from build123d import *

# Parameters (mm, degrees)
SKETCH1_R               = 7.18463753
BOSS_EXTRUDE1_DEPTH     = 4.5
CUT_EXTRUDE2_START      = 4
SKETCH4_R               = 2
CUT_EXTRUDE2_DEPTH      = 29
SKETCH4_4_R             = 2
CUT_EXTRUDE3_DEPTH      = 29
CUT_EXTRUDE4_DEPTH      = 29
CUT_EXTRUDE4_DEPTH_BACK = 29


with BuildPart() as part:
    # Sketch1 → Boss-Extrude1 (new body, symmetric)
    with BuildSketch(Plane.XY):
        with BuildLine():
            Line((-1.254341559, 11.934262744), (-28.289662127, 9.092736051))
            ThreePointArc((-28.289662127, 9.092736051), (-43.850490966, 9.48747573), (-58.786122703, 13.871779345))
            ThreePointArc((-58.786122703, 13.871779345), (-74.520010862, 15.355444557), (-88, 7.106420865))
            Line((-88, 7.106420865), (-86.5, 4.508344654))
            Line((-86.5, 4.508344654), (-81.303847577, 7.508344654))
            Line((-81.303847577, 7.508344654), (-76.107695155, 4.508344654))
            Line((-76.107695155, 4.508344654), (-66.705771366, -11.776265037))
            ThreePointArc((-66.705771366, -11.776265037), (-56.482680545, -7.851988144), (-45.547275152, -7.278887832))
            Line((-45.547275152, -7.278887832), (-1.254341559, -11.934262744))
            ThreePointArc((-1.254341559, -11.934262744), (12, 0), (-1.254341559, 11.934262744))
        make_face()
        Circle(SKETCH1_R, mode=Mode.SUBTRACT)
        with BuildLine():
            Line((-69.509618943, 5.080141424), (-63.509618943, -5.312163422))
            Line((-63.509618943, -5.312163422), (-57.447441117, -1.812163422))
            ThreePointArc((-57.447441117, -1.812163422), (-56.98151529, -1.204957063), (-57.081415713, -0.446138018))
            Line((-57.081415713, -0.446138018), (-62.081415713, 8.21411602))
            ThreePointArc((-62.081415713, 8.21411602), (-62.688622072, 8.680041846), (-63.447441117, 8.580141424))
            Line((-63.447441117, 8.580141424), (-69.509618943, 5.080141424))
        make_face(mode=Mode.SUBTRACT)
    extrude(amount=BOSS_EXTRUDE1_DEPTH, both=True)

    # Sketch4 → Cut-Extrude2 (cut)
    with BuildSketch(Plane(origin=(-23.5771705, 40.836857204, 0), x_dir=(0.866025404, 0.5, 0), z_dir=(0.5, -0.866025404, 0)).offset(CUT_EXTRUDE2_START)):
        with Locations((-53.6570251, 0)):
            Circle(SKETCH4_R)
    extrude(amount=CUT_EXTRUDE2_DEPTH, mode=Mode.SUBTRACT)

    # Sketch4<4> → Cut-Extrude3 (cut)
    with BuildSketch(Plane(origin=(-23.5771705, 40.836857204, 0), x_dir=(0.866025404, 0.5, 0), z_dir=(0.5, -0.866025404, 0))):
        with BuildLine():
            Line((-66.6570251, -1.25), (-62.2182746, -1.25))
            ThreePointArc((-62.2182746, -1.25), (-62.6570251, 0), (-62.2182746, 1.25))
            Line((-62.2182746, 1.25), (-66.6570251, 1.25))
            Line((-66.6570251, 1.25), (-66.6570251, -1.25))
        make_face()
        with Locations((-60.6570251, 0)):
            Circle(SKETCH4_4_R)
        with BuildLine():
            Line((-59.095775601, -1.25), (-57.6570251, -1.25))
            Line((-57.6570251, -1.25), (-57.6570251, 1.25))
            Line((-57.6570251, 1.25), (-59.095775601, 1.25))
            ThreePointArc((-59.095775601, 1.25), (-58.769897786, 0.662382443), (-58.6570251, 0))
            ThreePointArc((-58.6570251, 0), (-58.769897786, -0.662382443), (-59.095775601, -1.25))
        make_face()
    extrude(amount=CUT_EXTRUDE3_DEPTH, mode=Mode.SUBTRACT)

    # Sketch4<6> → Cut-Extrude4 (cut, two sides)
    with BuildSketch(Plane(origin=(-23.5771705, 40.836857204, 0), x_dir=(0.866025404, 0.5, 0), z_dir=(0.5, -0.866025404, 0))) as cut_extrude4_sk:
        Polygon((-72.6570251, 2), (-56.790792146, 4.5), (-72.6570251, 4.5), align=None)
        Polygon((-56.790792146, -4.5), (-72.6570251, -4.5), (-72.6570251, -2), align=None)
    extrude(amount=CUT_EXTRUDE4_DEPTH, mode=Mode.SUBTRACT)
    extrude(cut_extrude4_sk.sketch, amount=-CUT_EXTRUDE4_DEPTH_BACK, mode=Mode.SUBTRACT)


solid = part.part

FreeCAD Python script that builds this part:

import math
import FreeCAD as App
import Part
import Sketcher

V = App.Vector
Q = App.Units.Quantity


def add_polygon(sketch, points):
    """Adds a closed chain of lines whose ends are joined by coincident constraints."""
    first, n = sketch.GeometryCount, len(points)
    for a, b in zip(points, points[1:] + points[:1]):
        sketch.addGeometry(Part.LineSegment(App.Vector(*a, 0), App.Vector(*b, 0)), False)
    for i in range(n):
        sketch.addConstraint(Sketcher.Constraint("Coincident", first + i, 2, first + (i + 1) % n, 1))

doc = App.newDocument("Part")
body = doc.addObject("PartDesign::Body", "Body")

# Sketch on XY plane
sketch1 = doc.addObject("Sketcher::SketchObject", "Sketch")
body.addObject(sketch1)
sketch1.AttachmentSupport = (doc.XY_Plane, [""])
sketch1.MapMode = "FlatFace"
sketch1.addGeometry([
    Part.LineSegment(V(-1.3, 11.9, 0), V(-28.3, 9.1, 0)),  # 0
    Part.ArcOfCircle(Part.Circle(V(-34.6, 68.8, 0), V(0, 0, 1), 60), math.radians(-114), math.radians(-84)),  # 1
    Part.ArcOfCircle(Part.Circle(V(-68.9, -9, 0), V(0, 0, 1), 25), math.radians(66), math.radians(140)),  # 2
    Part.LineSegment(V(-88, 7.1, 0), V(-86.5, 4.5, 0)),  # 3
    Part.LineSegment(V(-86.5, 4.5, 0), V(-81.3, 7.5, 0)),  # 4
    Part.LineSegment(V(-81.3, 7.5, 0), V(-76.1, 4.5, 0)),  # 5
    Part.LineSegment(V(-76.1, 4.5, 0), V(-66.7, -11.8, 0)),  # 6
    Part.ArcOfCircle(Part.Circle(V(-49.2, -42.1, 0), V(0, 0, 1), 35), math.radians(84), math.radians(120)),  # 7
    Part.LineSegment(V(-45.5, -7.3, 0), V(-1.3, -11.9, 0)),  # 8
    Part.ArcOfCircle(Part.Circle(V(0, 0, 0), V(0, 0, 1), 12), math.radians(-96), math.radians(96)),  # 9
    Part.Circle(V(0, 0, 0), V(0, 0, 1), 7.2),  # 10
    Part.LineSegment(V(-63.5, -5.3, 0), V(-69.5, 5.1, 0)),  # 11
    Part.LineSegment(V(-69.5, 5.1, 0), V(-63.4, 8.6, 0)),  # 12
    Part.ArcOfCircle(Part.Circle(V(-62.9, 7.7, 0), V(0, 0, 1), 1), math.radians(30), math.radians(120)),  # 13
    Part.LineSegment(V(-62.1, 8.2, 0), V(-57.1, -0.4, 0)),  # 14
    Part.ArcOfCircle(Part.Circle(V(-57.9, -0.9, 0), V(0, 0, 1), 1), math.radians(-60), math.radians(30)),  # 15
    Part.LineSegment(V(-57.4, -1.8, 0), V(-63.5, -5.3, 0)),  # 16
], False)
sketch1.addConstraint([
    Sketcher.Constraint("Tangent", 0, 2, 1, 2),
    Sketcher.Constraint("Tangent", 1, 1, 2, 1),
    Sketcher.Constraint("Coincident", 2, 2, 3, 1),
    Sketcher.Constraint("Coincident", 3, 2, 4, 1),
    Sketcher.Constraint("Coincident", 4, 2, 5, 1),
    Sketcher.Constraint("Coincident", 5, 2, 6, 1),
    Sketcher.Constraint("Coincident", 6, 2, 7, 2),
    Sketcher.Constraint("Tangent", 7, 1, 8, 1),
    Sketcher.Constraint("Tangent", 8, 2, 9, 1),
    Sketcher.Constraint("Tangent", 9, 2, 0, 1),
    Sketcher.Constraint("Coincident", 11, 2, 12, 1),
    Sketcher.Constraint("Tangent", 12, 2, 13, 2),
    Sketcher.Constraint("Tangent", 13, 1, 14, 1),
    Sketcher.Constraint("Tangent", 14, 2, 15, 2),
    Sketcher.Constraint("Tangent", 15, 1, 16, 1),
    Sketcher.Constraint("Coincident", 16, 2, 11, 1),
    Sketcher.Constraint("Coincident", 9, 3, -1, 1),
    Sketcher.Constraint("Coincident", 10, 3, -1, 1),
    Sketcher.Constraint("Equal", 13, 15),
    Sketcher.Constraint("Perpendicular", 3, 4),
    Sketcher.Constraint("Perpendicular", 4, 6),
    Sketcher.Constraint("Parallel", 6, 11),
    Sketcher.Constraint("Perpendicular", 11, 12),
    Sketcher.Constraint("Perpendicular", 12, 14),
    Sketcher.Constraint("Perpendicular", 14, 16),
    Sketcher.Constraint("Horizontal", 3, 2, 5, 2),
    Sketcher.Constraint("Vertical", 8, 2, 9, 2),
    Sketcher.Constraint("Equal", 4, 5),
    Sketcher.Constraint("Radius", 1, 60.0),
    Sketcher.Constraint("Radius", 2, 25.0),
    Sketcher.Constraint("Radius", 7, 35.0),
    Sketcher.Constraint("Radius", 9, 12.0),
    Sketcher.Constraint("Radius", 13, 1.0),
    Sketcher.Constraint("Angle", 0, Q("-174 deg")),
    Sketcher.Constraint("Angle", 3, Q("-60 deg")),
    Sketcher.Constraint("Distance", 3, 3.0),
    Sketcher.Constraint("Distance", 4, 6.0),
    Sketcher.Constraint("Distance", 11, 12.0),
    Sketcher.Constraint("Distance", 12, 7.0),
    Sketcher.Constraint("DistanceY", 2, 3, -1, 1, 9.0),
    Sketcher.Constraint("DistanceX", 2, 2, -1, 1, 88.0),
    Sketcher.Constraint("Diameter", 10, 14.369275),
    Sketcher.Constraint("DistanceX", 2, 3, 7, 3, 19.673998),
    Sketcher.Constraint("DistanceX", 2, 3, 6, 2, 2.173998),
    Sketcher.Constraint("DistanceY", 6, 2, 16, 2, 6.464102),
    Sketcher.Constraint("DistanceX", 13, 3, -1, 1, 62.947441),
])
pad1 = doc.addObject("PartDesign::Pad", "Pad")
body.addObject(pad1)
pad1.Profile = sketch1
pad1.Length = 9
pad1.Midplane = True

# Sketch on an angled plane
sketch2 = doc.addObject("Sketcher::SketchObject", "Sketch001")
body.addObject(sketch2)
sketch2.Placement = App.Placement(V(-21.577171, 37.372756, 0), App.Rotation(V(0.866025404, 0.5, 0), V(0, 0, 1), V(0.5, -0.866025404, 0), "ZXY"))
sketch2.addGeometry(Part.Circle(V(-53.7, 0, 0), V(0, 0, 1), 2), False)
sketch2.addConstraint([
    Sketcher.Constraint("PointOnObject", 0, 3, -1),
    Sketcher.Constraint("Diameter", 0, 4.0),
    Sketcher.Constraint("DistanceX", 0, 3, -1, 1, 53.657025),
])
pocket1 = doc.addObject("PartDesign::Pocket", "Pocket")
body.addObject(pocket1)
pocket1.Profile = sketch2
pocket1.Length = 29
pocket1.Reversed = True

# Sketch on an angled plane
sketch3 = doc.addObject("Sketcher::SketchObject", "Sketch002")
body.addObject(sketch3)
sketch3.Placement = App.Placement(V(-23.577171, 40.836857, 0), App.Rotation(V(0.866025404, 0.5, 0), V(0, 0, 1), V(0.5, -0.866025404, 0), "ZXY"))
sketch3.addGeometry([
    Part.LineSegment(V(-66.7, -1.3, 0), V(-62.2, -1.3, 0)),  # 0
    Part.ArcOfCircle(Part.Circle(V(-60.7, 0, 0), V(0, 0, 1), 2), math.radians(-141), math.radians(-39)),  # 1
    Part.LineSegment(V(-59.1, -1.3, 0), V(-57.7, -1.3, 0)),  # 2
    Part.LineSegment(V(-57.7, -1.3, 0), V(-57.7, 1.3, 0)),  # 3
    Part.LineSegment(V(-57.7, 1.3, 0), V(-59.1, 1.3, 0)),  # 4
    Part.ArcOfCircle(Part.Circle(V(-60.7, 0, 0), V(0, 0, 1), 2), math.radians(39), math.radians(141)),  # 5
    Part.LineSegment(V(-62.2, 1.3, 0), V(-66.7, 1.3, 0)),  # 6
    Part.LineSegment(V(-66.7, 1.3, 0), V(-66.7, -1.3, 0)),  # 7
], False)
sketch3.addConstraint([
    Sketcher.Constraint("Coincident", 0, 2, 1, 1),
    Sketcher.Constraint("Coincident", 1, 2, 2, 1),
    Sketcher.Constraint("Coincident", 2, 2, 3, 1),
    Sketcher.Constraint("Coincident", 3, 2, 4, 1),
    Sketcher.Constraint("Coincident", 4, 2, 5, 1),
    Sketcher.Constraint("Coincident", 5, 2, 6, 1),
    Sketcher.Constraint("Coincident", 6, 2, 7, 1),
    Sketcher.Constraint("Coincident", 7, 2, 0, 1),
    Sketcher.Constraint("Horizontal", 0),
    Sketcher.Constraint("Horizontal", 2),
    Sketcher.Constraint("Vertical", 3),
    Sketcher.Constraint("Horizontal", 4),
    Sketcher.Constraint("Horizontal", 6),
    Sketcher.Constraint("Vertical", 7),
    Sketcher.Constraint("Coincident", 5, 3, 1, 3),
    Sketcher.Constraint("Equal", 1, 5),
    Sketcher.Constraint("Symmetric", 1, 2, 4, 2, -1),
    Sketcher.Constraint("Horizontal", 0, 2, 1, 2),
    Sketcher.Constraint("Horizontal", 4, 2, 5, 2),
    Sketcher.Constraint("Radius", 1, 2.0),
    Sketcher.Constraint("DistanceY", 3, 1, 3, 2, 2.5),
    Sketcher.Constraint("DistanceX", 1, 3, 2, 2, 3.0),
    Sketcher.Constraint("DistanceX", 6, 2, 1, 3, 6.0),
    Sketcher.Constraint("DistanceX", 1, 3, -1, 1, 60.657025),
])
pocket2 = doc.addObject("PartDesign::Pocket", "Pocket001")
body.addObject(pocket2)
pocket2.Profile = sketch3
pocket2.Length = 29
pocket2.Reversed = True

# Sketch on an angled plane
sketch4 = doc.addObject("Sketcher::SketchObject", "Sketch003")
body.addObject(sketch4)
sketch4.Placement = App.Placement(V(-23.577171, 40.836857, 0), App.Rotation(V(0.866025404, 0.5, 0), V(0, 0, 1), V(0.5, -0.866025404, 0), "ZXY"))
add_polygon(sketch4, [(-72.7, 2), (-56.8, 4.5), (-72.7, 4.5)])  # lines 0-2
add_polygon(sketch4, [(-72.7, -4.5), (-56.8, -4.5), (-72.7, -2)])  # lines 3-5
sketch4.addConstraint([
    Sketcher.Constraint("Horizontal", 1),
    Sketcher.Constraint("Vertical", 2),
    Sketcher.Constraint("Horizontal", 3),
    Sketcher.Constraint("Vertical", 5),
    Sketcher.Constraint("Symmetric", 0, 2, 3, 2, -1),
    Sketcher.Constraint("Symmetric", 2, 2, 4, 2, -1),
    Sketcher.Constraint("DistanceY", 2, 2, 2, 1, 2.5),
    Sketcher.Constraint("DistanceY", -1, 1, 2, 2, 2.0),
    Sketcher.Constraint("DistanceX", 1, 2, 1, 1, 15.866233),
    Sketcher.Constraint("DistanceX", 0, 2, -1, 1, 56.790792),
])
pocket3 = doc.addObject("PartDesign::Pocket", "Pocket002")
body.addObject(pocket3)
pocket3.Profile = sketch4
pocket3.Type = "ThroughAll"
pocket3.Midplane = True

doc.recompute()
